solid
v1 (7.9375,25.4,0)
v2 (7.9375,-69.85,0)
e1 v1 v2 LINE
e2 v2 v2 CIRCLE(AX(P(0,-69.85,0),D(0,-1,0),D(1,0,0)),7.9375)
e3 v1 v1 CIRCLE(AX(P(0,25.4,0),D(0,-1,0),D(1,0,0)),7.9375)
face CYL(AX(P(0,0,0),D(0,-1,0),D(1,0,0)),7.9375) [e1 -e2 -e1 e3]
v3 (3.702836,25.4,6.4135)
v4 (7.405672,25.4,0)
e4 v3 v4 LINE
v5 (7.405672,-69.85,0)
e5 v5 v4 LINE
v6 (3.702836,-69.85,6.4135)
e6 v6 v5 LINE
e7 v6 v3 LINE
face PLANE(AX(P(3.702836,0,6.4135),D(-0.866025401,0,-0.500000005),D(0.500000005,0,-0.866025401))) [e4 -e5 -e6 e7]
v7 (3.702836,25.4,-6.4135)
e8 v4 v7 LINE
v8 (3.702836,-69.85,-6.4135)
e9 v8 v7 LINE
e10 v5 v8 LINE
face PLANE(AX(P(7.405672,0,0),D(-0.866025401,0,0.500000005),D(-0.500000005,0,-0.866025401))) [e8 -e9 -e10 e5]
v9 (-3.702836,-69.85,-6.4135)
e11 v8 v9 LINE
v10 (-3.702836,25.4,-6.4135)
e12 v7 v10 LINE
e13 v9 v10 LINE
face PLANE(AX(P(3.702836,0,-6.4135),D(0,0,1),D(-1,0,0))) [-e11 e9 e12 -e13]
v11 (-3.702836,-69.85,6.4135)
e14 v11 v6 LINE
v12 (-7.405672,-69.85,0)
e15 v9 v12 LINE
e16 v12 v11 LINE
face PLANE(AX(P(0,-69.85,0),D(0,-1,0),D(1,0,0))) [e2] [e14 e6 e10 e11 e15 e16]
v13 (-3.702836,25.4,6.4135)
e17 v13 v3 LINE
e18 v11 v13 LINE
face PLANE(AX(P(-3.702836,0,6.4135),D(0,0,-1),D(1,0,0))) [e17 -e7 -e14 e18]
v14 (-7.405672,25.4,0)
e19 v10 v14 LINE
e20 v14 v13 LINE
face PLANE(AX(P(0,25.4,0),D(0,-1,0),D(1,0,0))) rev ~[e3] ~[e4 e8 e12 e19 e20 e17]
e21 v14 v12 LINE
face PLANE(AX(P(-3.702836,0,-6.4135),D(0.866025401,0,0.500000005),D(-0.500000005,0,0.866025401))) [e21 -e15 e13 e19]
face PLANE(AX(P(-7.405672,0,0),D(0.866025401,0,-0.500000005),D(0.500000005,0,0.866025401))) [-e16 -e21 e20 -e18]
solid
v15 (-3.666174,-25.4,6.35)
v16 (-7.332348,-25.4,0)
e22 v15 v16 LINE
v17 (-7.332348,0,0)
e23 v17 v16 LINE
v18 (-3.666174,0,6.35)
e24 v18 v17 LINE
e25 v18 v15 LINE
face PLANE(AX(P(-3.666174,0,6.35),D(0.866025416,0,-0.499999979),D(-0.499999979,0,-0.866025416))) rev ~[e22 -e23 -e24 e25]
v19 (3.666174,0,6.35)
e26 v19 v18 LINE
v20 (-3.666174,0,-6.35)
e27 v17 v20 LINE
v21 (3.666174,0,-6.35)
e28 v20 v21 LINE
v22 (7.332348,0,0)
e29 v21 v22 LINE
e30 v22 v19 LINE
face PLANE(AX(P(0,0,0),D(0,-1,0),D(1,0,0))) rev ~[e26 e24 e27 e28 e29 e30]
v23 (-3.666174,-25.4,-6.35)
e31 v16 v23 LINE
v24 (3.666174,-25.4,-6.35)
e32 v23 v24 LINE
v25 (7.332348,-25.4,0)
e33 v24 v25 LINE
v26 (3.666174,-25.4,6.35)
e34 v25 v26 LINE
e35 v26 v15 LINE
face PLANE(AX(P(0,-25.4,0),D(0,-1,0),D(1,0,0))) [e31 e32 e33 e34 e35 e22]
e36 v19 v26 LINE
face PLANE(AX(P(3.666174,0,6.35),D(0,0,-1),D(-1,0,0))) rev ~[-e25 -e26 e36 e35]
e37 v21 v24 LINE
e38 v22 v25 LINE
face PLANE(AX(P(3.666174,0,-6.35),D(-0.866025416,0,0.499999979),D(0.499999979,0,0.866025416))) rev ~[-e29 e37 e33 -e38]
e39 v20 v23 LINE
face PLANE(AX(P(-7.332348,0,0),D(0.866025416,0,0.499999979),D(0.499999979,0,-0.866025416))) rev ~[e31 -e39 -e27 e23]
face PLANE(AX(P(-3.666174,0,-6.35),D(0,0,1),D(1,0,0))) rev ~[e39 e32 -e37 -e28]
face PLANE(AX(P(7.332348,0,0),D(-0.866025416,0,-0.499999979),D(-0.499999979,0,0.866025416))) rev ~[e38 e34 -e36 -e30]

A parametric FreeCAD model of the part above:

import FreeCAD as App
import Part
import Sketcher

V = App.Vector
Q = App.Units.Quantity

doc = App.newDocument("Part")
params = doc.addObject("Spreadsheet::Sheet", "Params")
for row, (alias, value) in enumerate([
    ("pad1_length", "1 in"),
    ("sketch2_diameter", "0.625 in"),
    ("pad2_length", "2.75 in"),
    ("sketch3_diameter", "0.625 in"),
    ("pad3_length", "1 in"),
], start=1):
    params.set(f"A{row}", alias)
    params.set(f"B{row}", "=" + value)
    params.setAlias(f"B{row}", alias)

body = doc.addObject("PartDesign::Body", "Body")

# Sketch on XZ plane
sketch1 = doc.addObject("Sketcher::SketchObject", "Sketch")
body.addObject(sketch1)
sketch1.AttachmentSupport = (doc.XZ_Plane, [""])
sketch1.MapMode = "FlatFace"
sketch1.addGeometry([
    Part.LineSegment(V(4, 6, 0), V(-4, 6, 0)),  # 0
    Part.LineSegment(V(-4, 6, 0), V(-7, 0, 0)),  # 1
    Part.LineSegment(V(-7, 0, 0), V(-4, -6, 0)),  # 2
    Part.LineSegment(V(-4, -6, 0), V(4, -6, 0)),  # 3
    Part.LineSegment(V(4, -6, 0), V(7, 0, 0)),  # 4
    Part.LineSegment(V(7, 0, 0), V(4, 6, 0)),  # 5
], False)
sketch1.addConstraint([
    Sketcher.Constraint("Coincident", 0, 2, 1, 1),
    Sketcher.Constraint("Coincident", 1, 2, 2, 1),
    Sketcher.Constraint("Coincident", 2, 2, 3, 1),
    Sketcher.Constraint("Coincident", 3, 2, 4, 1),
    Sketcher.Constraint("Coincident", 4, 2, 5, 1),
    Sketcher.Constraint("Coincident", 5, 2, 0, 1),
    Sketcher.Constraint("Horizontal", 0),
    Sketcher.Constraint("Horizontal", 3),
    Sketcher.Constraint("Symmetric", 0, 2, 3, 2, -1, 1),
    Sketcher.Constraint("Symmetric", 1, 2, 4, 2, -1, 1),
    Sketcher.Constraint("PointOnObject", 1, 2, -1),
    Sketcher.Constraint("Parallel", 2, 5),
    Sketcher.Constraint("Vertical", 0, 2, 2, 2),
    Sketcher.Constraint("Angle", 1, Q("-119.999999 deg")),
    Sketcher.Constraint("DistanceY", 2, 2, 0, 2, Q("0.5 in")),
    Sketcher.Constraint("DistanceX", 0, 2, 0, 1, 7.332348),
])
pad1 = doc.addObject("PartDesign::Pad", "Pad")
body.addObject(pad1)
pad1.Profile = sketch1
pad1.setExpression("Length", "Params.pad1_length")
body2 = doc.addObject("PartDesign::Body", "Body001")

# Sketch on XZ plane
sketch2 = doc.addObject("Sketcher::SketchObject", "Sketch001")
body2.addObject(sketch2)
sketch2.AttachmentSupport = (doc.getObject("XZ_Plane001"), [""])
sketch2.MapMode = "FlatFace"
sketch2.addGeometry([
    Part.Circle(V(0, 0, 0), V(0, 0, 1), 8),  # 0
    Part.LineSegment(V(-4, -6, 0), V(-7, 0, 0)),  # 1
    Part.LineSegment(V(-7, 0, 0), V(-4, 6, 0)),  # 2
    Part.LineSegment(V(-4, 6, 0), V(4, 6, 0)),  # 3
    Part.LineSegment(V(4, 6, 0), V(7, 0, 0)),  # 4
    Part.LineSegment(V(7, 0, 0), V(4, -6, 0)),  # 5
    Part.LineSegment(V(4, -6, 0), V(-4, -6, 0)),  # 6
], False)
sketch2.addConstraint([
    Sketcher.Constraint("Coincident", 1, 2, 2, 1),
    Sketcher.Constraint("Coincident", 2, 2, 3, 1),
    Sketcher.Constraint("Coincident", 3, 2, 4, 1),
    Sketcher.Constraint("Coincident", 4, 2, 5, 1),
    Sketcher.Constraint("Coincident", 5, 2, 6, 1),
    Sketcher.Constraint("Coincident", 6, 2, 1, 1),
    Sketcher.Constraint("Horizontal", 3),
    Sketcher.Constraint("Horizontal", 6),
    Sketcher.Constraint("Coincident", 0, 3, -1, 1),
    Sketcher.Constraint("Symmetric", 1, 2, 4, 2, -1, 1),
    Sketcher.Constraint("Symmetric", 2, 2, 5, 2, -1, 1),
    Sketcher.Constraint("PointOnObject", 1, 2, -1),
    Sketcher.Constraint("Parallel", 1, 4),
    Sketcher.Constraint("Vertical", 3, 2, 5, 2),
    Sketcher.Constraint("Diameter", 0, Q("0.625 in")),
    Sketcher.Constraint("Angle", 1, Q("120 deg")),
    Sketcher.Constraint("DistanceY", 5, 2, 3, 2, Q("0.505 in")),
    Sketcher.Constraint("DistanceX", 3, 1, 3, 2, 7.405672),
])
sketch2.setExpression("Constraints[14]", "Params.sketch2_diameter")
pad2 = doc.addObject("PartDesign::Pad", "Pad001")
body2.addObject(pad2)
pad2.Profile = sketch2
pad2.setExpression("Length", "Params.pad2_length")

# Sketch on XZ plane
sketch3 = doc.addObject("Sketcher::SketchObject", "Sketch002")
body2.addObject(sketch3)
sketch3.AttachmentSupport = (doc.getObject("XZ_Plane001"), [""])
sketch3.MapMode = "FlatFace"
sketch3.addGeometry([
    Part.Circle(V(0, 0, 0), V(0, 0, 1), 8),  # 0
    Part.LineSegment(V(-4, -6, 0), V(-7, 0, 0)),  # 1
    Part.LineSegment(V(-7, 0, 0), V(-4, 6, 0)),  # 2
    Part.LineSegment(V(-4, 6, 0), V(4, 6, 0)),  # 3
    Part.LineSegment(V(4, 6, 0), V(7, 0, 0)),  # 4
    Part.LineSegment(V(7, 0, 0), V(4, -6, 0)),  # 5
    Part.LineSegment(V(4, -6, 0), V(-4, -6, 0)),  # 6
], False)
sketch3.addConstraint([
    Sketcher.Constraint("Coincident", 1, 2, 2, 1),
    Sketcher.Constraint("Coincident", 2, 2, 3, 1),
    Sketcher.Constraint("Coincident", 3, 2, 4, 1),
    Sketcher.Constraint("Coincident", 4, 2, 5, 1),
    Sketcher.Constraint("Coincident", 5, 2, 6, 1),
    Sketcher.Constraint("Coincident", 6, 2, 1, 1),
    Sketcher.Constraint("Horizontal", 3),
    Sketcher.Constraint("Horizontal", 6),
    Sketcher.Constraint("Coincident", 0, 3, -1, 1),
    Sketcher.Constraint("Symmetric", 1, 2, 4, 2, -1, 1),
    Sketcher.Constraint("Symmetric", 2, 2, 5, 2, -1, 1),
    Sketcher.Constraint("PointOnObject", 1, 2, -1),
    Sketcher.Constraint("Parallel", 1, 4),
    Sketcher.Constraint("Vertical", 3, 2, 5, 2),
    Sketcher.Constraint("Diameter", 0, Q("0.625 in")),
    Sketcher.Constraint("Angle", 1, Q("120 deg")),
    Sketcher.Constraint("DistanceY", 5, 2, 3, 2, Q("0.505 in")),
    Sketcher.Constraint("DistanceX", 3, 1, 3, 2, 7.405672),
])
sketch3.setExpression("Constraints[14]", "Params.sketch3_diameter")
pad3 = doc.addObject("PartDesign::Pad", "Pad002")
body2.addObject(pad3)
pad3.Profile = sketch3
pad3.setExpression("Length", "Params.pad3_length")
pad3.Reversed = True

doc.recompute()
